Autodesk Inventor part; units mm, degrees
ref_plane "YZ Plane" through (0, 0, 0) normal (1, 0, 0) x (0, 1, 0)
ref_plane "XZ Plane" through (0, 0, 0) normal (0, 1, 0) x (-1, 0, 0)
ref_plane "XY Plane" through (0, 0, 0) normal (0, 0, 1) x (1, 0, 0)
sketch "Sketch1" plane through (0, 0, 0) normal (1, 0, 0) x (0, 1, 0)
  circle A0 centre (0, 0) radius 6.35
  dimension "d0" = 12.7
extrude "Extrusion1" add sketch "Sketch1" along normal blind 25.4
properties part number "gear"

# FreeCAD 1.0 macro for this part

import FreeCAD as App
import Part
import Sketcher

V = App.Vector
Q = App.Units.Quantity

doc = App.newDocument("Part")
body = doc.addObject("PartDesign::Body", "Body")

# Sketch on YZ plane
sketch1 = doc.addObject("Sketcher::SketchObject", "Sketch")
body.addObject(sketch1)
sketch1.AttachmentSupport = (doc.YZ_Plane, [""])
sketch1.MapMode = "FlatFace"
sketch1.addGeometry(Part.Circle(V(0, 0, 0), V(0, 0, 1), 6), False)
sketch1.addConstraint([
    Sketcher.Constraint("Coincident", 0, 3, -1, 1),
    Sketcher.Constraint("Diameter", 0, Q("0.5 in")),
])
pad1 = doc.addObject("PartDesign::Pad", "Pad")
body.addObject(pad1)
pad1.Profile = sketch1
pad1.Length = Q("1 in")

doc.recompute()
